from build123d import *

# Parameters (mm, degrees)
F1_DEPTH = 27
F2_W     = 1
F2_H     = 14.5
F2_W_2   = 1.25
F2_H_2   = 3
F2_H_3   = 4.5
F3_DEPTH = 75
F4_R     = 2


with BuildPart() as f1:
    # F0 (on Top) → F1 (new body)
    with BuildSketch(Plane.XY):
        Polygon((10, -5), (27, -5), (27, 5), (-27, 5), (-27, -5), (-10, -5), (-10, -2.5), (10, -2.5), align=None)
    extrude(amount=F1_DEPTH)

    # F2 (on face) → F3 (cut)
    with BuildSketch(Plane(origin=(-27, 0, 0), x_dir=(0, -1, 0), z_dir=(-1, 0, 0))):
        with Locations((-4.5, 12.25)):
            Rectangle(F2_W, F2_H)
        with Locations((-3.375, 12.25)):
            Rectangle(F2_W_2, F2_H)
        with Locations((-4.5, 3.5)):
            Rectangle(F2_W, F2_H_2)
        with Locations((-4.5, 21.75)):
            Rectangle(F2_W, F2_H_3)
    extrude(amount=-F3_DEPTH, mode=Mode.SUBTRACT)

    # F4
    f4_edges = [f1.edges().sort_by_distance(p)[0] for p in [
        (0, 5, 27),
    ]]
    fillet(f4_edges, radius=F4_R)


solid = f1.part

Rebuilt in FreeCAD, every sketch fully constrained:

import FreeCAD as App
import Part
import Sketcher

V = App.Vector
Q = App.Units.Quantity


def edges_at(feature, points):
    """Names of the edges that pass closest to the given points."""
    edges = feature.Shape.Edges
    near = lambda p: min(range(len(edges)), key=lambda i: edges[i].distToShape(Part.Vertex(*p))[0])
    return sorted({f"Edge{near(p) + 1}" for p in points})


def add_polygon(sketch, points):
    """Adds a closed chain of lines whose ends are joined by coincident constraints."""
    first, n = sketch.GeometryCount, len(points)
    for a, b in zip(points, points[1:] + points[:1]):
        sketch.addGeometry(Part.LineSegment(App.Vector(*a, 0), App.Vector(*b, 0)), False)
    for i in range(n):
        sketch.addConstraint(Sketcher.Constraint("Coincident", first + i, 2, first + (i + 1) % n, 1))

doc = App.newDocument("Part")
body = doc.addObject("PartDesign::Body", "Body")

sketch1 = body.newObject("Sketcher::SketchObject", "Sketch")
sketch1.AttachmentSupport = (doc.getObject("XY_Plane"), [""])
sketch1.MapMode = "FlatFace"
add_polygon(sketch1, [(10, -5), (27, -5), (27, 5), (-27, 5), (-27, -5), (-10, -5), (-10, -2.5), (10, -2.5)])
sketch1.addConstraint(Sketcher.Constraint("Horizontal", 0))
sketch1.addConstraint(Sketcher.Constraint("Vertical", 1))
sketch1.addConstraint(Sketcher.Constraint("Horizontal", 2))
sketch1.addConstraint(Sketcher.Constraint("Vertical", 3))
sketch1.addConstraint(Sketcher.Constraint("Horizontal", 4))
sketch1.addConstraint(Sketcher.Constraint("Vertical", 5))
sketch1.addConstraint(Sketcher.Constraint("Horizontal", 6))
sketch1.addConstraint(Sketcher.Constraint("Vertical", 7))
sketch1.addConstraint(Sketcher.Constraint("Symmetric", 0, 2, 2, 2, -1, 1))
sketch1.addConstraint(Sketcher.Constraint("Symmetric", 4, 2, 7, 2, -2))
sketch1.addConstraint(Sketcher.Constraint("DistanceX", 0, 1, 0, 2, Q("17 mm")))
sketch1.addConstraint(Sketcher.Constraint("DistanceX", 2, 2, 2, 1, Q("54 mm")))
sketch1.addConstraint(Sketcher.Constraint("DistanceY", 1, 1, 1, 2, Q("10 mm")))
sketch1.addConstraint(Sketcher.Constraint("DistanceY", 5, 1, 5, 2, Q("2.5 mm")))
pad1 = body.newObject("PartDesign::Pad", "Pad")
pad1.Profile = sketch1
pad1.Length = 27

sketch2 = body.newObject("Sketcher::SketchObject", "Sketch001")
sketch2.AttachmentSupport = (doc.getObject("YZ_Plane"), [""])
sketch2.MapMode = "FlatFace"
sketch2.AttachmentOffset = App.Placement(V(0, 0, -27), App.Rotation())
add_polygon(sketch2, [(5, 2), (4, 2), (4, 5), (2.8, 5), (2.8, 19.5), (4, 19.5), (4, 24), (5, 24)])
sketch2.addConstraint(Sketcher.Constraint("Horizontal", 0))
sketch2.addConstraint(Sketcher.Constraint("Vertical", 1))
sketch2.addConstraint(Sketcher.Constraint("Horizontal", 2))
sketch2.addConstraint(Sketcher.Constraint("Vertical", 3))
sketch2.addConstraint(Sketcher.Constraint("Horizontal", 4))
sketch2.addConstraint(Sketcher.Constraint("Vertical", 5))
sketch2.addConstraint(Sketcher.Constraint("Horizontal", 6))
sketch2.addConstraint(Sketcher.Constraint("Vertical", 7))
sketch2.addConstraint(Sketcher.Constraint("Vertical", 1, 2, 4, 2))
sketch2.addConstraint(Sketcher.Constraint("DistanceX", 0, 2, 0, 1, Q("1 mm")))
sketch2.addConstraint(Sketcher.Constraint("DistanceY", 1, 1, 1, 2, Q("3 mm")))
sketch2.addConstraint(Sketcher.Constraint("DistanceY", 7, 2, 7, 1, Q("22 mm")))
sketch2.addConstraint(Sketcher.Constraint("DistanceY", 3, 1, 3, 2, Q("14.5 mm")))
sketch2.addConstraint(Sketcher.Constraint("DistanceX", -1, 1, 0, 2, Q("4 mm")))
sketch2.addConstraint(Sketcher.Constraint("DistanceY", -1, 1, 0, 2, Q("2 mm")))
sketch2.addConstraint(Sketcher.Constraint("DistanceX", 2, 2, 2, 1, Q("1.25 mm")))
pocket1 = body.newObject("PartDesign::Pocket", "Pocket")
pocket1.Profile = sketch2
pocket1.Length = 75
pocket1.Reversed = True
doc.recompute()

fillet = body.newObject("PartDesign::Fillet", "Fillet")
fillet.Base = (pocket1, edges_at(pocket1, [(0, 5, 27)]))
fillet.Radius = 2

doc.recompute()
